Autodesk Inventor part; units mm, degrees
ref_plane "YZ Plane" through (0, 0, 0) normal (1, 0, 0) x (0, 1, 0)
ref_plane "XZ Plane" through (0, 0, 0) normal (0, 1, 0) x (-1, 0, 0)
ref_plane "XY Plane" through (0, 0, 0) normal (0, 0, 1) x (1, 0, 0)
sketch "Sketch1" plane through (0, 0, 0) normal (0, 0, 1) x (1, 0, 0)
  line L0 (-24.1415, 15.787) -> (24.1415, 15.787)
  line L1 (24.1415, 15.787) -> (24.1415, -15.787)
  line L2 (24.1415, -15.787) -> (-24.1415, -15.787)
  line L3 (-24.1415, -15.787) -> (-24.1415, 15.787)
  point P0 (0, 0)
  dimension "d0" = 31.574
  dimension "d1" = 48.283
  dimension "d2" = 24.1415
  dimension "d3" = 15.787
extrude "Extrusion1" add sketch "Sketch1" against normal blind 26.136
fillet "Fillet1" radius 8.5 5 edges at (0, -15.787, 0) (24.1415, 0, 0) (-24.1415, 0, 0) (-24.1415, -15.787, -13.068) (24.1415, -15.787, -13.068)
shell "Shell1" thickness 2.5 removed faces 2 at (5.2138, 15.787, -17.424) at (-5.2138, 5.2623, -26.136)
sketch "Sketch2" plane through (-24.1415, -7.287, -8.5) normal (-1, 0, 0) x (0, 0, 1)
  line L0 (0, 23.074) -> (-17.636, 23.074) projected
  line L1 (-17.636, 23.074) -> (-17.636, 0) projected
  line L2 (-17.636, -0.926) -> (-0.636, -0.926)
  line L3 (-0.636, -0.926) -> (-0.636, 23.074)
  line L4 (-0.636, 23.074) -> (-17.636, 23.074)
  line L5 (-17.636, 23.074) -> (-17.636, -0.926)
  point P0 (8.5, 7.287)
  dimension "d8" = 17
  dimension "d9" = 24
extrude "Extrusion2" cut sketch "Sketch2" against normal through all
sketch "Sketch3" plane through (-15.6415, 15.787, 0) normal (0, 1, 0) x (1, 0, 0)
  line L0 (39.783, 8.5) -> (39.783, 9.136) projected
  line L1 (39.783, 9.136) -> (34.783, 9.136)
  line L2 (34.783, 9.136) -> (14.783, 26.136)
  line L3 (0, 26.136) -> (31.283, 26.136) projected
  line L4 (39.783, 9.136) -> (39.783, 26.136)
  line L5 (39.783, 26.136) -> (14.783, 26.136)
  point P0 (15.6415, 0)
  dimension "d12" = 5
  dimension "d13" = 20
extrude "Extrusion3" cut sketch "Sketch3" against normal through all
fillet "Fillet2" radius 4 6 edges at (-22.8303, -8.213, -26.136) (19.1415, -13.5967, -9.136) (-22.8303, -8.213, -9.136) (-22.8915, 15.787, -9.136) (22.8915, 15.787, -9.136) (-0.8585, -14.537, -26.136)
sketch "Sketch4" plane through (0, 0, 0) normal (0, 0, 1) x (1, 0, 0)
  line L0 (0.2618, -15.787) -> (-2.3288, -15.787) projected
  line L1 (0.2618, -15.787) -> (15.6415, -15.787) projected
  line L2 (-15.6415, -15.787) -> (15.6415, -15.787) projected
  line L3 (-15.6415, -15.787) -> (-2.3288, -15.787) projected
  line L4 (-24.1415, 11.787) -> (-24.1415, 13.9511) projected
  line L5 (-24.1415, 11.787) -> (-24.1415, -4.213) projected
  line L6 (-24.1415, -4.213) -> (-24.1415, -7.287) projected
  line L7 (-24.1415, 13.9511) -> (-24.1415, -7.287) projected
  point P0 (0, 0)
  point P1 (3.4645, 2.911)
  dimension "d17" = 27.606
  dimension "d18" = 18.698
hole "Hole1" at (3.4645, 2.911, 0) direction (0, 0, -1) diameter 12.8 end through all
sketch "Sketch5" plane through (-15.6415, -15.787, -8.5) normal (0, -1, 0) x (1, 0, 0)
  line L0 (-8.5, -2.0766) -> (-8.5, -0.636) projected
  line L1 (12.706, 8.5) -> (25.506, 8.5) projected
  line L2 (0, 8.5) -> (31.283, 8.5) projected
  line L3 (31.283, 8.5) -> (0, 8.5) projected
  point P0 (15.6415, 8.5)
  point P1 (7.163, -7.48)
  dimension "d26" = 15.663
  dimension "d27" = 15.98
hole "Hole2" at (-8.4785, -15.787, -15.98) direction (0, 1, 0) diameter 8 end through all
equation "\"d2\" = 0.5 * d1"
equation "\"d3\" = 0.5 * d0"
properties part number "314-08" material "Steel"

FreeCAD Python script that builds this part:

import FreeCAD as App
import Part
import Sketcher
from FreeCAD import Vector


def edges_at(feature, points):
    """Names of the edges that pass closest to the given points."""
    edges = feature.Shape.Edges
    near = lambda p: min(range(len(edges)), key=lambda i: edges[i].distToShape(Part.Vertex(*p))[0])
    return sorted({f"Edge{near(p) + 1}" for p in points})


def faces_at(feature, points):
    """Names of the faces that lie closest to the given points."""
    faces = feature.Shape.Faces
    near = lambda p: min(range(len(faces)), key=lambda i: faces[i].distToShape(Part.Vertex(*p))[0])
    return sorted({f"Face{near(p) + 1}" for p in points})


def add_polygon(sketch, points):
    """Adds a closed chain of lines whose ends are joined by coincident constraints."""
    first, n = sketch.GeometryCount, len(points)
    for a, b in zip(points, points[1:] + points[:1]):
        sketch.addGeometry(Part.LineSegment(App.Vector(*a, 0), App.Vector(*b, 0)), False)
    for i in range(n):
        sketch.addConstraint(Sketcher.Constraint("Coincident", first + i, 2, first + (i + 1) % n, 1))

doc = App.newDocument("Part")
body = doc.addObject("PartDesign::Body", "Body")

# Sketch on XY plane
sketch1 = body.newObject("Sketcher::SketchObject", "Sketch")
sketch1.AttachmentSupport = (doc.getObject("XY_Plane"), [""])
sketch1.MapMode = "FlatFace"
add_polygon(sketch1, [(24.1415, 15.787), (-24.1415, 15.787), (-24.1415, -15.787), (24.1415, -15.787)])  # lines 0-3
sketch1.addConstraint(Sketcher.Constraint("Horizontal", 0))
sketch1.addConstraint(Sketcher.Constraint("Vertical", 1))
sketch1.addConstraint(Sketcher.Constraint("Horizontal", 2))
sketch1.addConstraint(Sketcher.Constraint("Vertical", 3))
sketch1.addConstraint(Sketcher.Constraint("Symmetric", 0, 2, 2, 2, -1, 1))
sketch1.addConstraint(Sketcher.Constraint("DistanceX", 0, 2, 0, 1, 48.283))
sketch1.addConstraint(Sketcher.Constraint("DistanceY", 1, 2, 1, 1, 31.574))
pad1 = body.newObject("PartDesign::Pad", "Pad")
pad1.Profile = sketch1
pad1.Length = 26.136
pad1.Reversed = True
doc.recompute()

fillet = body.newObject("PartDesign::Fillet", "Fillet")
fillet.Base = (pad1, edges_at(pad1, [
    (0, -15.787, 0),
    (24.142, 0, 0),
    (-24.142, 0, 0),
    (-24.142, -15.787, -13.068),
    (24.142, -15.787, -13.068),
]))
fillet.Radius = 8.5
doc.recompute()

thickness = body.newObject("PartDesign::Thickness", "Thickness")
thickness.Base = (fillet, faces_at(fillet, [(5.214, 15.787, -17.424), (-5.214, 5.262, -26.136)]))
thickness.Value = 2.5
thickness.Reversed = True
thickness.Join = "Intersection"

# Sketch on YZ plane
sketch2 = body.newObject("Sketcher::SketchObject", "Sketch001")
sketch2.AttachmentSupport = (doc.getObject("YZ_Plane"), [""])
sketch2.MapMode = "FlatFace"
sketch2.AttachmentOffset = App.Placement(Vector(0, 0, -24.1415), App.Rotation())
add_polygon(sketch2, [(-8.213, -9.136), (15.787, -9.136), (15.787, -26.136), (-8.213, -26.136)])  # lines 0-3
sketch2.addConstraint(Sketcher.Constraint("Horizontal", 0))
sketch2.addConstraint(Sketcher.Constraint("Vertical", 1))
sketch2.addConstraint(Sketcher.Constraint("Horizontal", 2))
sketch2.addConstraint(Sketcher.Constraint("Vertical", 3))
sketch2.addConstraint(Sketcher.Constraint("DistanceX", 0, 1, 0, 2, 24.0))
sketch2.addConstraint(Sketcher.Constraint("DistanceY", 1, 2, 1, 1, 17.0))
sketch2.addConstraint(Sketcher.Constraint("DistanceX", -1, 1, 0, 2, 15.787))
sketch2.addConstraint(Sketcher.Constraint("DistanceY", 0, 2, -1, 1, 9.136))
pocket1 = body.newObject("PartDesign::Pocket", "Pocket")
pocket1.Profile = sketch2
pocket1.Type = "ThroughAll"
pocket1.Reversed = True

# Sketch on XZ plane
sketch3 = body.newObject("Sketcher::SketchObject", "Sketch002")
sketch3.AttachmentSupport = (doc.getObject("XZ_Plane"), [""])
sketch3.MapMode = "FlatFace"
sketch3.AttachmentOffset = App.Placement(Vector(0, 0, -15.787), App.Rotation())
add_polygon(sketch3, [(19.1415, -9.136), (24.1415, -9.136), (24.1415, -26.136), (-0.8585, -26.136)])  # lines 0-3
sketch3.addConstraint(Sketcher.Constraint("Horizontal", 0))
sketch3.addConstraint(Sketcher.Constraint("Vertical", 1))
sketch3.addConstraint(Sketcher.Constraint("Horizontal", 2))
sketch3.addConstraint(Sketcher.Constraint("DistanceX", 0, 1, 0, 2, 5.0))
sketch3.addConstraint(Sketcher.Constraint("DistanceX", 2, 2, 3, 2, 20.0))
sketch3.addConstraint(Sketcher.Constraint("DistanceY", 1, 2, 1, 1, 17.0))
sketch3.addConstraint(Sketcher.Constraint("DistanceY", 0, 2, -1, 1, 9.136))
sketch3.addConstraint(Sketcher.Constraint("DistanceX", -1, 1, 0, 2, 24.1415))
pocket2 = body.newObject("PartDesign::Pocket", "Pocket001")
pocket2.Profile = sketch3
pocket2.Type = "ThroughAll"
pocket2.Reversed = True
doc.recompute()

fillet2 = body.newObject("PartDesign::Fillet", "Fillet001")
fillet2.Base = (pocket2, edges_at(pocket2, [
    (-22.83, -8.213, -26.136),
    (19.142, -13.597, -9.136),
    (-22.83, -8.213, -9.136),
    (-22.892, 15.787, -9.136),
    (22.892, 15.787, -9.136),
    (-0.859, -14.537, -26.136),
]))
fillet2.Radius = 4

# Sketch on XY plane
sketch4 = body.newObject("Sketcher::SketchObject", "Sketch003")
sketch4.AttachmentSupport = (doc.getObject("XY_Plane"), [""])
sketch4.MapMode = "FlatFace"
sketch4.addGeometry(Part.Circle(Vector(3.4645, 2.911, 0), Vector(0, 0, 1), 6.4), False)
sketch4.addConstraint(Sketcher.Constraint("Diameter", 0, 12.8))
sketch4.addConstraint(Sketcher.Constraint("DistanceY", -1, 1, 0, 3, 2.911))
sketch4.addConstraint(Sketcher.Constraint("DistanceX", -1, 1, 0, 3, 3.4645))
doc.recompute()
hole = body.newObject("PartDesign::Hole", "Hole")
hole.Profile = sketch4
hole.ThreadType = "None"
hole.Diameter = 12.8
hole.DepthType = "ThroughAll"

# Sketch on XZ plane
sketch5 = body.newObject("Sketcher::SketchObject", "Sketch004")
sketch5.AttachmentSupport = (doc.getObject("XZ_Plane"), [""])
sketch5.MapMode = "FlatFace"
sketch5.AttachmentOffset = App.Placement(Vector(0, 0, 15.787), App.Rotation())
sketch5.addGeometry(Part.Circle(Vector(-8.4785, -15.98, 0), Vector(0, 0, 1), 4), False)
sketch5.addConstraint(Sketcher.Constraint("Diameter", 0, 8.0))
sketch5.addConstraint(Sketcher.Constraint("DistanceY", 0, 3, -1, 1, 15.98))
sketch5.addConstraint(Sketcher.Constraint("DistanceX", 0, 3, -1, 1, 8.4785))
doc.recompute()
hole2 = body.newObject("PartDesign::Hole", "Hole001")
hole2.Profile = sketch5
hole2.ThreadType = "None"
hole2.Diameter = 8
hole2.DepthType = "ThroughAll"

doc.recompute()
